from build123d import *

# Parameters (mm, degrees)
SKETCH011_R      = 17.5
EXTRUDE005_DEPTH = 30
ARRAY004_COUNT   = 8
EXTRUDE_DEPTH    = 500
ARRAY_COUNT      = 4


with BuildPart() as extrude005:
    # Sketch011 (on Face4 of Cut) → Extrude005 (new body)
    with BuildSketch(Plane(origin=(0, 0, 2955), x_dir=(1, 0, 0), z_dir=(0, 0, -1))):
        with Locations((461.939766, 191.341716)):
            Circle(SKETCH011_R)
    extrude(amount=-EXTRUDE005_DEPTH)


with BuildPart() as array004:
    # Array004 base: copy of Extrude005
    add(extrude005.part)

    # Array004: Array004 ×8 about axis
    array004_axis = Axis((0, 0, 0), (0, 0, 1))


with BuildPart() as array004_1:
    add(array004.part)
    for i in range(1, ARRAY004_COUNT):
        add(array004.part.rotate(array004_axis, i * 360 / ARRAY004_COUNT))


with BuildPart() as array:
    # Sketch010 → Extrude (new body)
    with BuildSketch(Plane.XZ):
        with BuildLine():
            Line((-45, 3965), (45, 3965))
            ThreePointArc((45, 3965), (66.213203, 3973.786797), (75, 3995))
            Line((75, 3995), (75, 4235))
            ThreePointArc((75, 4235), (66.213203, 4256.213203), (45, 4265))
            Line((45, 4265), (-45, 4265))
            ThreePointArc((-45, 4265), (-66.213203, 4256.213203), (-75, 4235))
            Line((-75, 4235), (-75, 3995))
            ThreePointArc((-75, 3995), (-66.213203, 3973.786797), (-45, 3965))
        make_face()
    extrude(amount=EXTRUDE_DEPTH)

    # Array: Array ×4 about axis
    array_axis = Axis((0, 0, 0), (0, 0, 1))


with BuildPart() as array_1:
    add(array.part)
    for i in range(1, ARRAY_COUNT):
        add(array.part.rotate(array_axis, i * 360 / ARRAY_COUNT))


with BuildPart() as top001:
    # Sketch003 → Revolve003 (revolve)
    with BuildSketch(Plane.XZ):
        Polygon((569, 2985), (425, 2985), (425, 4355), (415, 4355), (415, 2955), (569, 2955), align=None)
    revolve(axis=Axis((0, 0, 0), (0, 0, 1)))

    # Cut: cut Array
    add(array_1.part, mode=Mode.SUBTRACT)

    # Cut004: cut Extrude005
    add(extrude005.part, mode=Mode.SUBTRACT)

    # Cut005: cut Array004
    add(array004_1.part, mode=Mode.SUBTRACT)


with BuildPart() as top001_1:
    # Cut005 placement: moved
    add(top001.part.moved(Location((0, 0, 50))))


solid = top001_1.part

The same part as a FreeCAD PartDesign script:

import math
import FreeCAD as App
import Part
import Sketcher


def add_polygon(sketch, points):
    """Adds a closed chain of lines whose ends are joined by coincident constraints."""
    first, n = sketch.GeometryCount, len(points)
    for a, b in zip(points, points[1:] + points[:1]):
        sketch.addGeometry(Part.LineSegment(App.Vector(*a, 0), App.Vector(*b, 0)), False)
    for i in range(n):
        sketch.addConstraint(Sketcher.Constraint("Coincident", first + i, 2, first + (i + 1) % n, 1))

doc = App.newDocument("Part")
params = doc.addObject("Spreadsheet::Sheet", "Params")
for row, (alias, value) in enumerate([
    ("sketch1_diameter", "35 mm"),
    ("pad1_length", "30 mm"),
    ("sketch2_radius", "30.000001 mm"),
    ("sketch2_width", "90 mm"),
    ("sketch2_height", "240 mm"),
    ("pad2_length", "500 mm"),
    ("sketch3_width", "144 mm"),
    ("sketch3_width2", "10 mm"),
    ("sketch3_height", "1370 mm"),
    ("sketch3_height2", "1400 mm"),
    ("revolution_angle", "360 deg"),
], start=1):
    params.set(f"A{row}", alias)
    params.set(f"B{row}", "=" + value)
    params.setAlias(f"B{row}", alias)

body = doc.addObject("PartDesign::Body", "Body")

sketch1 = body.newObject("Sketcher::SketchObject", "Sketch")
sketch1.AttachmentSupport = (doc.getObject("XY_Plane"), [""])
sketch1.MapMode = "FlatFace"
sketch1.AttachmentOffset = App.Placement(App.Vector(0, 0, 2955), App.Rotation())
sketch1.addGeometry(Part.Circle(App.Vector(462, -191, 0), App.Vector(0, 0, 1), 18), False)
sketch1.addConstraint([
    Sketcher.Constraint("Diameter", 0, 35.0),
    Sketcher.Constraint("DistanceX", -1, 1, 0, 3, 461.939766),
    Sketcher.Constraint("DistanceY", 0, 3, -1, 1, 191.341716),
])
sketch1.setExpression("Constraints[0]", "Params.sketch1_diameter")
pad1 = body.newObject("PartDesign::Pad", "Pad")
pad1.Profile = sketch1
pad1.setExpression("Length", "Params.pad1_length")
body2 = doc.addObject("PartDesign::Body", "Body001")
doc.recompute()

body2.BaseFeature = body
doc.recompute()
body3 = doc.addObject("PartDesign::Body", "Body002")
body3.AllowCompound = True
doc.recompute()

body3.BaseFeature = body2
doc.recompute()

body4 = doc.addObject("PartDesign::Body", "Body003")
body4.BaseFeature = body2
body4.Placement = App.Placement(App.Vector(0, 0, 0), App.Rotation(App.Vector(0, 0, 1), 45))
boolean = body3.newObject("PartDesign::Boolean", "Boolean")
boolean.Type = "Fuse"
boolean.addObjects([body4])
doc.recompute()

body5 = doc.addObject("PartDesign::Body", "Body004")
body5.BaseFeature = body2
body5.Placement = App.Placement(App.Vector(0, 0, 0), App.Rotation(App.Vector(0, 0, 1), 90))
boolean2 = body3.newObject("PartDesign::Boolean", "Boolean001")
boolean2.Type = "Fuse"
boolean2.addObjects([body5])
doc.recompute()

body6 = doc.addObject("PartDesign::Body", "Body005")
body6.BaseFeature = body2
body6.Placement = App.Placement(App.Vector(0, 0, 0), App.Rotation(App.Vector(0, 0, 1), 135))
boolean3 = body3.newObject("PartDesign::Boolean", "Boolean002")
boolean3.Type = "Fuse"
boolean3.addObjects([body6])
doc.recompute()

body7 = doc.addObject("PartDesign::Body", "Body006")
body7.BaseFeature = body2
body7.Placement = App.Placement(App.Vector(0, 0, 0), App.Rotation(App.Vector(0, 0, 1), 180))
boolean4 = body3.newObject("PartDesign::Boolean", "Boolean003")
boolean4.Type = "Fuse"
boolean4.addObjects([body7])
doc.recompute()

body8 = doc.addObject("PartDesign::Body", "Body007")
body8.BaseFeature = body2
body8.Placement = App.Placement(App.Vector(0, 0, 0), App.Rotation(App.Vector(0, 0, 1), 225))
boolean5 = body3.newObject("PartDesign::Boolean", "Boolean004")
boolean5.Type = "Fuse"
boolean5.addObjects([body8])
doc.recompute()

body9 = doc.addObject("PartDesign::Body", "Body008")
body9.BaseFeature = body2
body9.Placement = App.Placement(App.Vector(0, 0, 0), App.Rotation(App.Vector(0, 0, 1), 270))
boolean6 = body3.newObject("PartDesign::Boolean", "Boolean005")
boolean6.Type = "Fuse"
boolean6.addObjects([body9])
doc.recompute()

body2.Placement = App.Placement(App.Vector(0, 0, 0), App.Rotation(App.Vector(0, 0, 1), 315))
boolean7 = body3.newObject("PartDesign::Boolean", "Boolean006")
boolean7.Type = "Fuse"
boolean7.addObjects([body2])
body10 = doc.addObject("PartDesign::Body", "Body009")

sketch2 = body10.newObject("Sketcher::SketchObject", "Sketch001")
sketch2.AttachmentSupport = (doc.getObject("XZ_Plane009"), [""])
sketch2.MapMode = "FlatFace"
sketch2.addGeometry([
    Part.LineSegment(App.Vector(-45, 3965, 0), App.Vector(45, 3965, 0)),
    Part.ArcOfCircle(Part.Circle(App.Vector(45, 3995, 0), App.Vector(0, 0, 1), 30), math.radians(-90), math.radians(0)),
    Part.LineSegment(App.Vector(75, 3995, 0), App.Vector(75, 4235, 0)),
    Part.ArcOfCircle(Part.Circle(App.Vector(45, 4235, 0), App.Vector(0, 0, 1), 30), math.radians(0), math.radians(90)),
    Part.LineSegment(App.Vector(45, 4265, 0), App.Vector(-45, 4265, 0)),
    Part.ArcOfCircle(Part.Circle(App.Vector(-45, 4235, 0), App.Vector(0, 0, 1), 30), math.radians(90), math.radians(180)),
    Part.LineSegment(App.Vector(-75, 4235, 0), App.Vector(-75, 3995, 0)),
    Part.ArcOfCircle(Part.Circle(App.Vector(-45, 3995, 0), App.Vector(0, 0, 1), 30), math.radians(-180), math.radians(-90)),
], False)
sketch2.addConstraint([
    Sketcher.Constraint("Tangent", 0, 2, 1, 1),
    Sketcher.Constraint("Tangent", 1, 2, 2, 1),
    Sketcher.Constraint("Tangent", 2, 2, 3, 1),
    Sketcher.Constraint("Tangent", 3, 2, 4, 1),
    Sketcher.Constraint("Tangent", 4, 2, 5, 1),
    Sketcher.Constraint("Tangent", 5, 2, 6, 1),
    Sketcher.Constraint("Tangent", 6, 2, 7, 1),
    Sketcher.Constraint("Tangent", 7, 2, 0, 1),
    Sketcher.Constraint("Horizontal", 0),
    Sketcher.Constraint("Vertical", 2),
    Sketcher.Constraint("Horizontal", 4),
    Sketcher.Constraint("Vertical", 6),
    Sketcher.Constraint("Equal", 1, 3),
    Sketcher.Constraint("Equal", 3, 5),
    Sketcher.Constraint("Equal", 5, 7),
    Sketcher.Constraint("Radius", 1, 30.000001),
    Sketcher.Constraint("DistanceX", 0, 1, 0, 2, 90.0),
    Sketcher.Constraint("DistanceY", 2, 1, 2, 2, 240.0),
    Sketcher.Constraint("DistanceX", -1, 1, 1, 3, 44.999999),
    Sketcher.Constraint("DistanceY", -1, 1, 1, 3, 3995.000001),
])
sketch2.setExpression("Constraints[15]", "Params.sketch2_radius")
sketch2.setExpression("Constraints[16]", "Params.sketch2_width")
sketch2.setExpression("Constraints[17]", "Params.sketch2_height")
pad2 = body10.newObject("PartDesign::Pad", "Pad001")
pad2.Profile = sketch2
pad2.setExpression("Length", "Params.pad2_length")
body11 = doc.addObject("PartDesign::Body", "Body010")
doc.recompute()

body11.BaseFeature = body10
doc.recompute()

body12 = doc.addObject("PartDesign::Body", "Body011")
body12.BaseFeature = body10
body12.Placement = App.Placement(App.Vector(0, 0, 0), App.Rotation(App.Vector(0, 0, 1), 90))
boolean8 = body11.newObject("PartDesign::Boolean", "Boolean007")
boolean8.Type = "Fuse"
boolean8.addObjects([body12])
doc.recompute()

body13 = doc.addObject("PartDesign::Body", "Body012")
body13.BaseFeature = body10
body13.Placement = App.Placement(App.Vector(0, 0, 0), App.Rotation(App.Vector(0, 0, 1), 180))
boolean9 = body11.newObject("PartDesign::Boolean", "Boolean008")
boolean9.Type = "Fuse"
boolean9.addObjects([body13])
doc.recompute()

body10.Placement = App.Placement(App.Vector(0, 0, 0), App.Rotation(App.Vector(0, 0, 1), 270))
boolean10 = body11.newObject("PartDesign::Boolean", "Boolean009")
boolean10.Type = "Fuse"
boolean10.addObjects([body10])
body14 = doc.addObject("PartDesign::Body", "Body013")

sketch3 = body14.newObject("Sketcher::SketchObject", "Sketch002")
sketch3.AttachmentSupport = (doc.getObject("XZ_Plane013"), [""])
sketch3.MapMode = "FlatFace"
add_polygon(sketch3, [(569, 2985), (425, 2985), (425, 4355), (415, 4355), (415, 2955), (569, 2955)])
sketch3.addConstraint([
    Sketcher.Constraint("Horizontal", 0),
    Sketcher.Constraint("Vertical", 1),
    Sketcher.Constraint("Horizontal", 2),
    Sketcher.Constraint("Vertical", 3),
    Sketcher.Constraint("Horizontal", 4),
    Sketcher.Constraint("Vertical", 5),
    Sketcher.Constraint("DistanceX", 0, 2, 0, 1, 144.0),
    Sketcher.Constraint("DistanceX", 2, 2, 2, 1, 10.0),
    Sketcher.Constraint("DistanceY", 1, 1, 1, 2, 1370.0),
    Sketcher.Constraint("DistanceY", 3, 2, 3, 1, 1400.0),
    Sketcher.Constraint("DistanceX", -1, 1, 0, 2, 425.0),
    Sketcher.Constraint("DistanceY", -1, 1, 0, 2, 2985.0),
])
sketch3.setExpression("Constraints[12]", "Params.sketch3_width")
sketch3.setExpression("Constraints[13]", "Params.sketch3_width2")
sketch3.setExpression("Constraints[14]", "Params.sketch3_height")
sketch3.setExpression("Constraints[15]", "Params.sketch3_height2")
revolution = body14.newObject("PartDesign::Revolution", "Revolution")
revolution.Profile = sketch3
revolution.ReferenceAxis = (sketch3, ["V_Axis"])
revolution.setExpression("Angle", "Params.revolution_angle")
doc.recompute()

boolean11 = body14.newObject("PartDesign::Boolean", "Boolean010")
boolean11.Type = "Cut"
boolean11.addObjects([body11])
doc.recompute()

boolean12 = body14.newObject("PartDesign::Boolean", "Boolean011")
boolean12.Type = "Cut"
boolean12.addObjects([body])
doc.recompute()

boolean13 = body14.newObject("PartDesign::Boolean", "Boolean012")
boolean13.Type = "Cut"
boolean13.addObjects([body3])
body15 = doc.addObject("PartDesign::Body", "Body014")
doc.recompute()

body14.Placement = App.Placement(App.Vector(0, 0, 50), App.Rotation(App.Vector(0, 0, 1), 0))
boolean14 = body15.newObject("PartDesign::Boolean", "Boolean013")
boolean14.Type = "Fuse"
boolean14.addObjects([body14])

doc.recompute()
